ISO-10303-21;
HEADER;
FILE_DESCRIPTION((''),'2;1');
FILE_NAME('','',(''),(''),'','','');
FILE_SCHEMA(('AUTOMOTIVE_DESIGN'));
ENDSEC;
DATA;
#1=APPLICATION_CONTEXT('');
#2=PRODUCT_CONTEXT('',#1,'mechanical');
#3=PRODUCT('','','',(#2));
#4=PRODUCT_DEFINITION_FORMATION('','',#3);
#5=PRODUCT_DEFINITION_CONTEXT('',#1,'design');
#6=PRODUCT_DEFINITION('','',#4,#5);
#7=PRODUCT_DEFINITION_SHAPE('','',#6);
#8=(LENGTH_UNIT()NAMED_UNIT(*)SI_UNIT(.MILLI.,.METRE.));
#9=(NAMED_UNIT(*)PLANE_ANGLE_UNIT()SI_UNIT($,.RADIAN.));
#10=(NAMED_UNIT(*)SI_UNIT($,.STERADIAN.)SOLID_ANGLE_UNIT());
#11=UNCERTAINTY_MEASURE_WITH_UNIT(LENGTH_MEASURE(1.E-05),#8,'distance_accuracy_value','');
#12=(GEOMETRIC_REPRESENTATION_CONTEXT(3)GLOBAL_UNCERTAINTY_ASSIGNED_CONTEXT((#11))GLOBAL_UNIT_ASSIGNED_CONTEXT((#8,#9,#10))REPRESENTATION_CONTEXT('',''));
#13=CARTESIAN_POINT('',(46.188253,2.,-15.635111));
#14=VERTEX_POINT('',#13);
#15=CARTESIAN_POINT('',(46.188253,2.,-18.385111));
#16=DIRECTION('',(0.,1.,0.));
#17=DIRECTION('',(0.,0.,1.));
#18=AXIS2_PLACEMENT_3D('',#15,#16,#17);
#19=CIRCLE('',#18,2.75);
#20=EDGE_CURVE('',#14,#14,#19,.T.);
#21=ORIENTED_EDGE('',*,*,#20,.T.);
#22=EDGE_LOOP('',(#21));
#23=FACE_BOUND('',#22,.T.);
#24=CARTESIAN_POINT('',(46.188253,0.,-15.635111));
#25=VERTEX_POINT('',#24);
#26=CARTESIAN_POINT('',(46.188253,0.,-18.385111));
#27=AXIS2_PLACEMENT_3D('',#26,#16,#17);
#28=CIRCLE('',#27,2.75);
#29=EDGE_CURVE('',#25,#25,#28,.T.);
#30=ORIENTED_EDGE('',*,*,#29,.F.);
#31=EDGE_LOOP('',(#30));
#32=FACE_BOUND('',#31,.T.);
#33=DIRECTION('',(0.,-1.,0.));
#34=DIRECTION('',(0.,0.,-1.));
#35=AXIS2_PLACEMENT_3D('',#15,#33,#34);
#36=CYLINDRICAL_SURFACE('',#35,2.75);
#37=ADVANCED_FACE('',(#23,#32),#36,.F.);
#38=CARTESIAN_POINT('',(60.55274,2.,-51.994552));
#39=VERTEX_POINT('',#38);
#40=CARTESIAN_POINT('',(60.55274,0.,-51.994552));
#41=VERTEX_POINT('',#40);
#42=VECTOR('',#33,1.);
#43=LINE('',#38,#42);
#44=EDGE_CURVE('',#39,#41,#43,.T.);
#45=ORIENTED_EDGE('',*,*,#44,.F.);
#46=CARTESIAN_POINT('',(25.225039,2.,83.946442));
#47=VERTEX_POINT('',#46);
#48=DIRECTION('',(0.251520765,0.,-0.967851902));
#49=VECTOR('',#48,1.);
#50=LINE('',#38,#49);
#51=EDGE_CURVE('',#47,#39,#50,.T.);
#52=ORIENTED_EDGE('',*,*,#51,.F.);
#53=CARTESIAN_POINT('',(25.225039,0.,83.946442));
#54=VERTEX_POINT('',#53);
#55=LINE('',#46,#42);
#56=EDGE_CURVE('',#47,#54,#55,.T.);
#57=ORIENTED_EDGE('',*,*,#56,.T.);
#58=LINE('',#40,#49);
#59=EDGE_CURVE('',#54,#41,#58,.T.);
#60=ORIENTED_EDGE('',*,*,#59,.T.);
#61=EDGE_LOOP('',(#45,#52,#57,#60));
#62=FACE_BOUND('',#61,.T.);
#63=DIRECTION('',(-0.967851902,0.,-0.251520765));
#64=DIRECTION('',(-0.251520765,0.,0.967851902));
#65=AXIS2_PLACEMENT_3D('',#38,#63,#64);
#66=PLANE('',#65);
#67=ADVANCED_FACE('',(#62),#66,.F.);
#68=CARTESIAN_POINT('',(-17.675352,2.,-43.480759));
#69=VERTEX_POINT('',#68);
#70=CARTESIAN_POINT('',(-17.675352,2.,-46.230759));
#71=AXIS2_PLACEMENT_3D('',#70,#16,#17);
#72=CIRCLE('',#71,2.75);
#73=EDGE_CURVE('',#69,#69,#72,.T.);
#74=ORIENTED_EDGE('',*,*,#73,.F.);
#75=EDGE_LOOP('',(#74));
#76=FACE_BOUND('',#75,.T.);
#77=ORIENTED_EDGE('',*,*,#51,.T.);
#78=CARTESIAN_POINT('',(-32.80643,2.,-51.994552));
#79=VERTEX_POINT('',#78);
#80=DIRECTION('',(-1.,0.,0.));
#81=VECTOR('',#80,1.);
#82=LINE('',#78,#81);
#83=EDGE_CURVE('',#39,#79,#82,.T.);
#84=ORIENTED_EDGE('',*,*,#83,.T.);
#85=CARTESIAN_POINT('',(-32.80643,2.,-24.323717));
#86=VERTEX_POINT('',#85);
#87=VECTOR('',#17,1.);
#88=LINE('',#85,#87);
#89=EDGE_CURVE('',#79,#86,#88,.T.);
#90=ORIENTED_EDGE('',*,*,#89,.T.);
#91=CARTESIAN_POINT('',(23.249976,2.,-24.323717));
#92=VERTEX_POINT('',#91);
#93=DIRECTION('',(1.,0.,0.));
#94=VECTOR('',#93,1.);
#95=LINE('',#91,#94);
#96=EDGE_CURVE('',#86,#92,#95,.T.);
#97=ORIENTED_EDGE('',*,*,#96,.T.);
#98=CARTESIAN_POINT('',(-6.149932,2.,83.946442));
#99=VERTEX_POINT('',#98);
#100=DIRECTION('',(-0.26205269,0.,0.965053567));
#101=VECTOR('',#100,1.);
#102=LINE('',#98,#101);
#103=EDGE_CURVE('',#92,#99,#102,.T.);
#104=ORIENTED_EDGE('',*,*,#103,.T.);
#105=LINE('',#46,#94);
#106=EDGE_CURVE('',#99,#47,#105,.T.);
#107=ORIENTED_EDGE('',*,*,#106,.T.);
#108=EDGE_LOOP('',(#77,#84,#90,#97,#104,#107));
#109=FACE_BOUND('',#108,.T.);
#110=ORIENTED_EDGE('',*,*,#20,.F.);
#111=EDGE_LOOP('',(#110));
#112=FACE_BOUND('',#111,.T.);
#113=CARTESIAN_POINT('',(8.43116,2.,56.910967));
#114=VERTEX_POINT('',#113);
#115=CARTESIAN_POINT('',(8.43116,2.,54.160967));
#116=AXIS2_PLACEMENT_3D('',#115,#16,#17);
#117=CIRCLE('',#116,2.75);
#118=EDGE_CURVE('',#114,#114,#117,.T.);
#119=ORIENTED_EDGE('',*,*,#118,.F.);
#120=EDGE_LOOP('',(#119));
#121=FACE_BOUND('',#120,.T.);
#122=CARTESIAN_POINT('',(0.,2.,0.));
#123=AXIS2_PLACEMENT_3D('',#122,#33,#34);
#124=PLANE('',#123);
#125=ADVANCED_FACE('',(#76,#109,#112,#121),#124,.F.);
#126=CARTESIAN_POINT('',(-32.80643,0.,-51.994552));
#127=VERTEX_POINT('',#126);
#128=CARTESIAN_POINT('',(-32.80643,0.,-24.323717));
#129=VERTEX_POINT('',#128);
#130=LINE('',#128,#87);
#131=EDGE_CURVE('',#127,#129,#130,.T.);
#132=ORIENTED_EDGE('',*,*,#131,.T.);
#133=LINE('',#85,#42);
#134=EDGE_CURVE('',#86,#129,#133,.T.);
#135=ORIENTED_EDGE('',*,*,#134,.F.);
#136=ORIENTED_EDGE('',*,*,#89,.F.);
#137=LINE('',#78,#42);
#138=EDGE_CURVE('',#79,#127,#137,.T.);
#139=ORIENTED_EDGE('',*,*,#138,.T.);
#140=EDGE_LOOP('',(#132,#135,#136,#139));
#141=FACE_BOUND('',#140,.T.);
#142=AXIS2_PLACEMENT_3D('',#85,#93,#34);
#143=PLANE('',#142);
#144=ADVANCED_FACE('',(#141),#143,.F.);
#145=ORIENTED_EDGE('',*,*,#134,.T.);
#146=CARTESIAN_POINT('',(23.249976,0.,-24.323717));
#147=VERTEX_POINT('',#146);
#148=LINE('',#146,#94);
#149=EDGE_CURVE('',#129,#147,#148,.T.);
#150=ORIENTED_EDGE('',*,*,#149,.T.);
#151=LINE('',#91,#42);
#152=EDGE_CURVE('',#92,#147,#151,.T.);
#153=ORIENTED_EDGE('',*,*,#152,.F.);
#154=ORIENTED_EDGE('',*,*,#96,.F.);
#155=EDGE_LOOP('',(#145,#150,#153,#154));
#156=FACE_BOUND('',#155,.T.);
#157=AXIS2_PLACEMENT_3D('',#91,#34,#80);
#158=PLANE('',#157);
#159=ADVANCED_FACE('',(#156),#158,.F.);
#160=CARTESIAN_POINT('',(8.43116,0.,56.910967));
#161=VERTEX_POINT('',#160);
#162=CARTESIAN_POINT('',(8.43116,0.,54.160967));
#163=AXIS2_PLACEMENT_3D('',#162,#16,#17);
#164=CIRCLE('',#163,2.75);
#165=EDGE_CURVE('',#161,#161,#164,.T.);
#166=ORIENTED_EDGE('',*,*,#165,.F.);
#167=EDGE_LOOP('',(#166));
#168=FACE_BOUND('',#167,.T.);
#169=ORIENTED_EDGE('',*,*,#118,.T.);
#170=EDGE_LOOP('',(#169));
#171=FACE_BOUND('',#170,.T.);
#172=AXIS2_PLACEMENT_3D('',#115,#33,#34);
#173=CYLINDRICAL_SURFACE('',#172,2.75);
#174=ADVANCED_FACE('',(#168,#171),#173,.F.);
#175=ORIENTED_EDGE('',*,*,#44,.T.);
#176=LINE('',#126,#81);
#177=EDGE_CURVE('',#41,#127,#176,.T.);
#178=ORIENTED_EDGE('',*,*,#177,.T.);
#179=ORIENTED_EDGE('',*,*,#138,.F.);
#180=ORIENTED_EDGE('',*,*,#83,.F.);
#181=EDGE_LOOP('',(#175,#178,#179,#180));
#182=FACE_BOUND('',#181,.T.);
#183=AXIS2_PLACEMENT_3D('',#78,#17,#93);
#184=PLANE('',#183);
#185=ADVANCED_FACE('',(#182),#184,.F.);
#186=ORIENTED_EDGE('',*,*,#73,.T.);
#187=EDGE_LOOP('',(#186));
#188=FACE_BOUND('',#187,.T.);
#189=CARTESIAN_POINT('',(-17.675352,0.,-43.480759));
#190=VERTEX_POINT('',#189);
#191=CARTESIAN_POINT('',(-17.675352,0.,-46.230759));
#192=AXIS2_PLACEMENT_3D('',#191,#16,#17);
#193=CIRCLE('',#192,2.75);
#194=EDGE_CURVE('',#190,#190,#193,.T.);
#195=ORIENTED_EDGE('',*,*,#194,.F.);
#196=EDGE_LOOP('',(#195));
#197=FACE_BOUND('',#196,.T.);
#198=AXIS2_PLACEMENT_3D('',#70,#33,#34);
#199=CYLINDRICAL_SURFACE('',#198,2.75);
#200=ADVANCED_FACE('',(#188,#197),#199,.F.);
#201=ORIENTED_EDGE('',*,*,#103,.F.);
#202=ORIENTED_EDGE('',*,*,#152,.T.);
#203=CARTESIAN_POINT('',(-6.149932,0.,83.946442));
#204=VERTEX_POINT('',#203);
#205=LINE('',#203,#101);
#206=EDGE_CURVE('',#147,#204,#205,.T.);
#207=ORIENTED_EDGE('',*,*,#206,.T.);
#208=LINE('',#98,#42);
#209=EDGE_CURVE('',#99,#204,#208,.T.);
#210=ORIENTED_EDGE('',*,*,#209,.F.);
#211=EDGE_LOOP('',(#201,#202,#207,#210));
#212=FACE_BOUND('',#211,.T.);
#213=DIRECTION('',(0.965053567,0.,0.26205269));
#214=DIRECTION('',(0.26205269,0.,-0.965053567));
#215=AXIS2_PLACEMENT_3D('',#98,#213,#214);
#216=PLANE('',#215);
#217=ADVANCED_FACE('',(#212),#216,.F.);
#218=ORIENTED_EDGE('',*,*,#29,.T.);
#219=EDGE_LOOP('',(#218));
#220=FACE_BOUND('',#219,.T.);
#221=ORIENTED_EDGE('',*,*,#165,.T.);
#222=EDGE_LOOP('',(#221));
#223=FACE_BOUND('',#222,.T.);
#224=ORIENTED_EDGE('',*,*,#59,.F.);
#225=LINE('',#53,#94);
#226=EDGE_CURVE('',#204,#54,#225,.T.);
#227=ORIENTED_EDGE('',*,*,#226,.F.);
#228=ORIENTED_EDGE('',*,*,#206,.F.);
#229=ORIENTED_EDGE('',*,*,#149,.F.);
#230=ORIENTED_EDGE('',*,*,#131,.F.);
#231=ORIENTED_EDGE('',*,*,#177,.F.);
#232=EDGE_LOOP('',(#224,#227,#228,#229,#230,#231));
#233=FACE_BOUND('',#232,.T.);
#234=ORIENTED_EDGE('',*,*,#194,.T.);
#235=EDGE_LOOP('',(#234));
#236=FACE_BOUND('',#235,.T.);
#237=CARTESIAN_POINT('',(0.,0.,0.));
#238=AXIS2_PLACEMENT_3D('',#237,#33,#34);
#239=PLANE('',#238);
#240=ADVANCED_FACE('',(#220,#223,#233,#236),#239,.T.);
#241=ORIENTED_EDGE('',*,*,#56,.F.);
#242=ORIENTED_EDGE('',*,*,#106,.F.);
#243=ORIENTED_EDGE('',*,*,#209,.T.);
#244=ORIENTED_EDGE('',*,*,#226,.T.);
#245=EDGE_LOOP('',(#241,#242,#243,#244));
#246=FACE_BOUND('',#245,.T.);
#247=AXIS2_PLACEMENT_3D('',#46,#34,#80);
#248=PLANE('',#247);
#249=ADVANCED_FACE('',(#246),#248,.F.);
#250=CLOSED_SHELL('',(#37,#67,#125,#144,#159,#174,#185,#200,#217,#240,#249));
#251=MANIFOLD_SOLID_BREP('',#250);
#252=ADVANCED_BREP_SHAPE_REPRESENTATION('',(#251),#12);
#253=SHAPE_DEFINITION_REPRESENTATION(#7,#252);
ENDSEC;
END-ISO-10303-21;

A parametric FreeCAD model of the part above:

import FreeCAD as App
import Part
import Sketcher
from FreeCAD import Vector
Q = App.Units.Quantity

doc = App.newDocument("Part")
params = doc.addObject("Spreadsheet::Sheet", "Params")
for row, (alias, value) in enumerate([
    ("pad1_length", "2 mm"),
    ("sketch2_diameter", "5.5 mm"),
], start=1):
    params.set(f"A{row}", alias)
    params.set(f"B{row}", "=" + value)
    params.setAlias(f"B{row}", alias)

body = doc.addObject("PartDesign::Body", "Body")

# Sketch on XZ plane
sketch1 = body.newObject("Sketcher::SketchObject", "Sketch")
sketch1.AttachmentSupport = (doc.getObject("XZ_Plane"), [""])
sketch1.MapMode = "FlatFace"
sketch1.addGeometry([
    Part.LineSegment(Vector(61, -52, 0), Vector(-33, -52, 0)),  # 0
    Part.LineSegment(Vector(-33, -52, 0), Vector(-33, -24, 0)),  # 1
    Part.LineSegment(Vector(-33, -24, 0), Vector(23, -24, 0)),  # 2
    Part.LineSegment(Vector(23, -24, 0), Vector(-6, 84, 0)),  # 3
    Part.LineSegment(Vector(-6, 84, 0), Vector(25, 84, 0)),  # 4
    Part.LineSegment(Vector(25, 84, 0), Vector(61, -52, 0)),  # 5
], False)
sketch1.addConstraint([
    Sketcher.Constraint("Coincident", 0, 2, 1, 1),
    Sketcher.Constraint("Coincident", 1, 2, 2, 1),
    Sketcher.Constraint("Coincident", 2, 2, 3, 1),
    Sketcher.Constraint("Coincident", 3, 2, 4, 1),
    Sketcher.Constraint("Coincident", 4, 2, 5, 1),
    Sketcher.Constraint("Coincident", 5, 2, 0, 1),
    Sketcher.Constraint("Horizontal", 0),
    Sketcher.Constraint("Vertical", 1),
    Sketcher.Constraint("Horizontal", 2),
    Sketcher.Constraint("Horizontal", 4),
    Sketcher.Constraint("Distance", 5, Q("140.4564 mm")),
    Sketcher.Constraint("DistanceX", 0, 2, 0, 1, Q("93.359171 mm")),
    Sketcher.Constraint("DistanceX", 4, 1, 4, 2, Q("31.374971 mm")),
    Sketcher.Constraint("DistanceX", 4, 2, 5, 2, Q("35.327701 mm")),
    Sketcher.Constraint("Distance", 3, Q("112.190829 mm")),
    Sketcher.Constraint("DistanceX", 2, 1, 2, 2, Q("56.056406 mm")),
    Sketcher.Constraint("DistanceX", 0, 2, -1, 1, Q("32.80643 mm")),
    Sketcher.Constraint("DistanceY", 0, 2, -1, 1, Q("51.994552 mm")),
])
pad1 = body.newObject("PartDesign::Pad", "Pad")
pad1.Profile = sketch1
pad1.setExpression("Length", "Params.pad1_length")
pad1.Reversed = True

# Sketch on XZ plane
sketch2 = body.newObject("Sketcher::SketchObject", "Sketch001")
sketch2.AttachmentSupport = (doc.getObject("XZ_Plane"), [""])
sketch2.MapMode = "FlatFace"
sketch2.addGeometry([
    Part.Circle(Vector(-17.7, -46.2, 0), Vector(0, 0, 1), 2.8),
    Part.Circle(Vector(46.2, -18.4, 0), Vector(0, 0, 1), 2.8),
    Part.Circle(Vector(8.4, 54.2, 0), Vector(0, 0, 1), 2.8),
], False)
sketch2.addConstraint([
    Sketcher.Constraint("Equal", 0, 1),
    Sketcher.Constraint("Equal", 1, 2),
    Sketcher.Constraint("Diameter", 0, Q("5.5 mm")),
    Sketcher.Constraint("DistanceX", 0, 3, -1, 1, Q("17.675352 mm")),
    Sketcher.Constraint("DistanceY", 0, 3, -1, 1, Q("46.230759 mm")),
    Sketcher.Constraint("DistanceY", 1, 3, -1, 1, Q("18.385111 mm")),
    Sketcher.Constraint("DistanceX", -1, 1, 2, 3, Q("8.43116 mm")),
    Sketcher.Constraint("DistanceY", 1, 3, 2, 3, Q("72.546078 mm")),
    Sketcher.Constraint("DistanceX", -1, 1, 1, 3, Q("46.188253 mm")),
])
sketch2.setExpression("Constraints[2]", "Params.sketch2_diameter")
pocket1 = body.newObject("PartDesign::Pocket", "Pocket")
pocket1.Profile = sketch2
pocket1.Type = "ThroughAll"

doc.recompute()
